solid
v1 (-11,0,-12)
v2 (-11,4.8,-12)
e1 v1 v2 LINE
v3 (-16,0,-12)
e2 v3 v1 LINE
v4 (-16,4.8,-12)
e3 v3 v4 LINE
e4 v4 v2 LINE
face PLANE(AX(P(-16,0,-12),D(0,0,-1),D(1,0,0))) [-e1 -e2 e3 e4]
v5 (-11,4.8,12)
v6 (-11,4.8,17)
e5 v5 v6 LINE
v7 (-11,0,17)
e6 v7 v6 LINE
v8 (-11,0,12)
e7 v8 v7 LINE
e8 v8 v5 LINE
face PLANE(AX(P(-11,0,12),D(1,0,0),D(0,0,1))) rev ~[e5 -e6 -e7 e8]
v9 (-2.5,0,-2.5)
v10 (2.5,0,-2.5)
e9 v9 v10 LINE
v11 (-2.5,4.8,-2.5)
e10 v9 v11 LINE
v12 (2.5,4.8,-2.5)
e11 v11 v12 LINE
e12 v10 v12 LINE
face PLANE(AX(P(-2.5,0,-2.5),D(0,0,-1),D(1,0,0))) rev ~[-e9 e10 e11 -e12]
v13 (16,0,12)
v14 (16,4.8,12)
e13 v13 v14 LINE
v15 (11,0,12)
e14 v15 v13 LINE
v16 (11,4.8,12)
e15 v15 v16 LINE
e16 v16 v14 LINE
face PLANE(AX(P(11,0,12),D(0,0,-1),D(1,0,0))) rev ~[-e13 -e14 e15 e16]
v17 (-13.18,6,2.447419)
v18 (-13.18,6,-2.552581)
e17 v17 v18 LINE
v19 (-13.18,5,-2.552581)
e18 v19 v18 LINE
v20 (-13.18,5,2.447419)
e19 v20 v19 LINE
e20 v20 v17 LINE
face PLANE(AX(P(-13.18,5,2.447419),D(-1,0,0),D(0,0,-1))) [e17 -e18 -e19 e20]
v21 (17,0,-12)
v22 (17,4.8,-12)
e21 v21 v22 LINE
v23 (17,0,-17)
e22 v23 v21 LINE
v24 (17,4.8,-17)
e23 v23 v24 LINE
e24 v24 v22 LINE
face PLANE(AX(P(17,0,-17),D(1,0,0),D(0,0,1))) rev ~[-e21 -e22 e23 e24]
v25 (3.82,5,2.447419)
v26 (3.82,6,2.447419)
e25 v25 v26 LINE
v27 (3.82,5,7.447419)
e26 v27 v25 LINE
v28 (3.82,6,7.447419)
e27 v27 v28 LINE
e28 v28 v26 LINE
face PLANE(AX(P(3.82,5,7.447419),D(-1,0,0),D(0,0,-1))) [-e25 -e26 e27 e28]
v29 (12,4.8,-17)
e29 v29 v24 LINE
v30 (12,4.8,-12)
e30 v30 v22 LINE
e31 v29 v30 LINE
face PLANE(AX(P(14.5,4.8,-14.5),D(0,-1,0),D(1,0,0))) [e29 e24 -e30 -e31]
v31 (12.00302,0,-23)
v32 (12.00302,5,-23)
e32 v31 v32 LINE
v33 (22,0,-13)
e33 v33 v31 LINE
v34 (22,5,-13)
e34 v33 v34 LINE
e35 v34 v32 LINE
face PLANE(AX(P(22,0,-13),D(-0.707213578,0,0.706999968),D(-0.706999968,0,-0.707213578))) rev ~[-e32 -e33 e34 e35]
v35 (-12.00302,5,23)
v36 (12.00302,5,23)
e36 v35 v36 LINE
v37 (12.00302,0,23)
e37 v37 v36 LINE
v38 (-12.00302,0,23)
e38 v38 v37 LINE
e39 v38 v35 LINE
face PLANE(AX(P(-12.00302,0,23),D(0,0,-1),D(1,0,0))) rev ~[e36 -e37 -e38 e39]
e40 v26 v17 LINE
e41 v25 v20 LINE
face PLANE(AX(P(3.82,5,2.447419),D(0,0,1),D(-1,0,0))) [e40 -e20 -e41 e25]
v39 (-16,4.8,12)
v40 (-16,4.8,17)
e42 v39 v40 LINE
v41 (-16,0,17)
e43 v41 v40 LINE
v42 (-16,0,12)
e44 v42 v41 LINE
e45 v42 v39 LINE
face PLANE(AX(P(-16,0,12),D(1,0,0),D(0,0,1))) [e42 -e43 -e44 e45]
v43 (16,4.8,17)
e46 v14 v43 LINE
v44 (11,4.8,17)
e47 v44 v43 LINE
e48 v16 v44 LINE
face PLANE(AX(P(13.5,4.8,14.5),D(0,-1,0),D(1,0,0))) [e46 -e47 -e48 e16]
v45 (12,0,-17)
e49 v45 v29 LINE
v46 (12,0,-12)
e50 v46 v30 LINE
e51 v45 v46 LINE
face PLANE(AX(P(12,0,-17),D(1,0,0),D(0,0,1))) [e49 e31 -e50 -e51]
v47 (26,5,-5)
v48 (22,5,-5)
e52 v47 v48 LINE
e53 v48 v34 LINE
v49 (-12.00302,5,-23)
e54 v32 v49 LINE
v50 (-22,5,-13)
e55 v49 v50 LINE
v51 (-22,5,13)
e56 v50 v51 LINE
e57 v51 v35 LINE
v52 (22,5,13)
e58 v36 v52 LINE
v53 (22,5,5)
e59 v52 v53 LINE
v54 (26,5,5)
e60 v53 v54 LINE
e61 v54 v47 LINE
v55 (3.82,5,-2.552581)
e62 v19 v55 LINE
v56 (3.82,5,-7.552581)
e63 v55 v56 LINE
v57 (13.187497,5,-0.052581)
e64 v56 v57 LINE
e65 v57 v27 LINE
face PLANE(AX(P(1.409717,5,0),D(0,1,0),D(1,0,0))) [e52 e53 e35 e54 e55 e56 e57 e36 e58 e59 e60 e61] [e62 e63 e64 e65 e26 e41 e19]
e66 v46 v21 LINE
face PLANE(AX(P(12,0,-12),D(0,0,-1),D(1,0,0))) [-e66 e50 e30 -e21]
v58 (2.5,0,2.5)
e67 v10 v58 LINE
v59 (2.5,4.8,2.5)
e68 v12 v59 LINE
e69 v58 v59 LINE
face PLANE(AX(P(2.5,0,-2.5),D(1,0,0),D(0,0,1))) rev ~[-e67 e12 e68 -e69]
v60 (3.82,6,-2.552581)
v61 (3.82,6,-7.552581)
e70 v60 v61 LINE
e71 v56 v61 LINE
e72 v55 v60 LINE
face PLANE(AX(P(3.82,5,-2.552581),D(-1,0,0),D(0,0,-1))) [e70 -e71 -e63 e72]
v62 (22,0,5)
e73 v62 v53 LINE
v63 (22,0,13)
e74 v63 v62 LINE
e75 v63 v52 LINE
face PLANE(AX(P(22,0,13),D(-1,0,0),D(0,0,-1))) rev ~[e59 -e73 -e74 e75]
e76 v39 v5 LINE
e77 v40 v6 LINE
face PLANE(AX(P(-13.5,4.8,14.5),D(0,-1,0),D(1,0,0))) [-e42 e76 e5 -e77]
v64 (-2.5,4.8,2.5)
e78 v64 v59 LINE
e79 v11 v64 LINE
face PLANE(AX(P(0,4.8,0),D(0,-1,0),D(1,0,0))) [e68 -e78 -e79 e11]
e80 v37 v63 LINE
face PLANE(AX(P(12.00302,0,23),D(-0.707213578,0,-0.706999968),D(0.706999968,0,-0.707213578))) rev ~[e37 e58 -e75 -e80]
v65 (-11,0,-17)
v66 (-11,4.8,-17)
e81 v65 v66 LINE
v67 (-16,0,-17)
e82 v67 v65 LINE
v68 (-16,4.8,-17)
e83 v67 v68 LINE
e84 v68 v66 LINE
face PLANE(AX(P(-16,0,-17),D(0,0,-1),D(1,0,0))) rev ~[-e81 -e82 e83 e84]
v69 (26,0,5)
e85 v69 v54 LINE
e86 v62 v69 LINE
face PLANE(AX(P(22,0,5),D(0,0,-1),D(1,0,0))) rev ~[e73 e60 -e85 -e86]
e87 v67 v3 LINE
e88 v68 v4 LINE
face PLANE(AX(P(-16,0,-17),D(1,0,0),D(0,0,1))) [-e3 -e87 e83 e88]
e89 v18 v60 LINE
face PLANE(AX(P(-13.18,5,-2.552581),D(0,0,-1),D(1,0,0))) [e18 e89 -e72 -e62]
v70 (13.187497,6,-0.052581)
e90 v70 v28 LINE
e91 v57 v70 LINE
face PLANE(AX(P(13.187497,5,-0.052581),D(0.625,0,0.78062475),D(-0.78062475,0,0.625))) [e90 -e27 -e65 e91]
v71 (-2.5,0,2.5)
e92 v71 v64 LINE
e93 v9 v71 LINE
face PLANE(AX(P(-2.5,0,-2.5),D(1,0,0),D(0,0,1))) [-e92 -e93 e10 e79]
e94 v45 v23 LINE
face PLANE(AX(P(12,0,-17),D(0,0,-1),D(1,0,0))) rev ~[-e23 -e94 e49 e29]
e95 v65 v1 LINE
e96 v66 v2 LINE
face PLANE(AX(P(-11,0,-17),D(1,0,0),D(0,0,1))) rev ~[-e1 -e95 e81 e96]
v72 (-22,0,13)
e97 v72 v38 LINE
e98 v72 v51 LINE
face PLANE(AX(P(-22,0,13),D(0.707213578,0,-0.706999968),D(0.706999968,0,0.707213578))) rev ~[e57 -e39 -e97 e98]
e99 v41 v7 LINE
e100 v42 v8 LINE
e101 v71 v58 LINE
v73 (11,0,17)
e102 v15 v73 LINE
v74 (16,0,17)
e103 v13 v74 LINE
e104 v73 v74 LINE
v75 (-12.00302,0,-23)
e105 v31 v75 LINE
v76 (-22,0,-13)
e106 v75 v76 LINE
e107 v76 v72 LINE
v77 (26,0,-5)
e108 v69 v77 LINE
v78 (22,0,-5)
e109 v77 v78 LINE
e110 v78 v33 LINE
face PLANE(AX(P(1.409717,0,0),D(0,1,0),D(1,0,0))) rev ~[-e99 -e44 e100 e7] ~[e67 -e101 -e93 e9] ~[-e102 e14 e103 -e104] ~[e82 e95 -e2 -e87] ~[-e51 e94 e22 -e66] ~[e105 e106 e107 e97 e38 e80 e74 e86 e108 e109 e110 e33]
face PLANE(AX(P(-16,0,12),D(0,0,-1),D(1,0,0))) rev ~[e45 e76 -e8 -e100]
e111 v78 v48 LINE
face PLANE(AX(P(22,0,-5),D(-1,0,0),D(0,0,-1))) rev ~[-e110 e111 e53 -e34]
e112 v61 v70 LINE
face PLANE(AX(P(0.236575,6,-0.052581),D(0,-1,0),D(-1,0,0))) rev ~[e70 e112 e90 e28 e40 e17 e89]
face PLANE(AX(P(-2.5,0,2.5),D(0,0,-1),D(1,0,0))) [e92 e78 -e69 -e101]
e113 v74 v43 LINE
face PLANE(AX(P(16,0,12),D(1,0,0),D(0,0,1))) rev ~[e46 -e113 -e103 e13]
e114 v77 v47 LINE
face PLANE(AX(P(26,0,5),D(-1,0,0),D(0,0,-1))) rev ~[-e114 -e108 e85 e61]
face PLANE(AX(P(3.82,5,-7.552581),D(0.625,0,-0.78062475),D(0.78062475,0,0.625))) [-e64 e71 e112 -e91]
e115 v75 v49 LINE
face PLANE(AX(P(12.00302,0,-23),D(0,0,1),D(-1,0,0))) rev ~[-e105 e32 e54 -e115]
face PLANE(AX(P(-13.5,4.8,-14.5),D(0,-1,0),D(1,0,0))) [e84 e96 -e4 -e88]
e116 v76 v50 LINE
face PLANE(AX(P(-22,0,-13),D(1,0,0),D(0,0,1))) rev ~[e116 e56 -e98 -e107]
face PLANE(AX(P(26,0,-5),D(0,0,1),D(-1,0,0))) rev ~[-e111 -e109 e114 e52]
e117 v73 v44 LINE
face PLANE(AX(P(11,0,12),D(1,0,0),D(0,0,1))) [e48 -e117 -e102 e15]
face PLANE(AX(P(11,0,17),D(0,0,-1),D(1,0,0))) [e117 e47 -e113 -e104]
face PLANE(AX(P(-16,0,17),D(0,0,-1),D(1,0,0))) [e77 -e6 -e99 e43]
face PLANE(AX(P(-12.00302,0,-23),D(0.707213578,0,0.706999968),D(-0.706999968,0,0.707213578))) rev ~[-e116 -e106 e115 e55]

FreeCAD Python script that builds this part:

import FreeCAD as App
import Part
import Sketcher


def add_polygon(sketch, points):
    """Adds a closed chain of lines whose ends are joined by coincident constraints."""
    first, n = sketch.GeometryCount, len(points)
    for a, b in zip(points, points[1:] + points[:1]):
        sketch.addGeometry(Part.LineSegment(App.Vector(*a, 0), App.Vector(*b, 0)), False)
    for i in range(n):
        sketch.addConstraint(Sketcher.Constraint("Coincident", first + i, 2, first + (i + 1) % n, 1))

doc = App.newDocument("Part")
params = doc.addObject("Spreadsheet::Sheet", "Params")
for row, (alias, value) in enumerate([
    ("sketch1_width", "4 mm"),
    ("sketch1_height", "26 mm"),
    ("sketch1_height2", "8 mm"),
    ("sketch1_length", "14.14 mm"),
    ("pad1_length", "5 mm"),
    ("sketch2_width", "17 mm"),
    ("sketch2_height", "5 mm"),
    ("sketch2_length", "12 mm"),
    ("pad2_length", "1 mm"),
    ("sketch3_width", "5 mm"),
    ("pocket1_length", "4.8 mm"),
], start=1):
    params.set(f"A{row}", alias)
    params.set(f"B{row}", "=" + value)
    params.setAlias(f"B{row}", alias)

body = doc.addObject("PartDesign::Body", "Body")

sketch1 = body.newObject("Sketcher::SketchObject", "Sketch")
sketch1.AttachmentSupport = (doc.getObject("XZ_Plane"), [""])
sketch1.MapMode = "FlatFace"
add_polygon(sketch1, [(22, -13), (12, -23), (-12, -23), (-22, -13), (-22, 13), (-12, 23), (12, 23), (22, 13), (22, 5), (26, 5), (26, -5), (22, -5)])
sketch1.addConstraint([
    Sketcher.Constraint("Horizontal", 1),
    Sketcher.Constraint("Vertical", 3),
    Sketcher.Constraint("Horizontal", 5),
    Sketcher.Constraint("Vertical", 7),
    Sketcher.Constraint("Horizontal", 8),
    Sketcher.Constraint("Vertical", 9),
    Sketcher.Constraint("Horizontal", 10),
    Sketcher.Constraint("Vertical", 11),
    Sketcher.Constraint("Symmetric", 0, 2, 4, 2, -1, 1),
    Sketcher.Constraint("Symmetric", 2, 2, 6, 2, -1, 1),
    Sketcher.Constraint("Symmetric", 3, 2, 11, 2, -1, 1),
    Sketcher.Constraint("Parallel", 2, 6),
    Sketcher.Constraint("Horizontal", 3, 2, 6, 2),
    Sketcher.Constraint("Vertical", 1, 2, 4, 2),
    Sketcher.Constraint("Equal", 7, 11),
    Sketcher.Constraint("DistanceX", 8, 1, 8, 2, 4.0),
    Sketcher.Constraint("DistanceY", 3, 1, 3, 2, 26.0),
    Sketcher.Constraint("DistanceY", 7, 2, 7, 1, 8.0),
    Sketcher.Constraint("DistanceY", 0, 2, -1, 1, 23.0),
    Sketcher.Constraint("DistanceX", 2, 2, -1, 1, 22.0),
    Sketcher.Constraint("Distance", 0, 14.14),
])
sketch1.setExpression("Constraints[27]", "Params.sketch1_width")
sketch1.setExpression("Constraints[28]", "Params.sketch1_height")
sketch1.setExpression("Constraints[29]", "Params.sketch1_height2")
sketch1.setExpression("Constraints[32]", "Params.sketch1_length")
pad1 = body.newObject("PartDesign::Pad", "Pad")
pad1.Profile = sketch1
pad1.setExpression("Length", "Params.pad1_length")
pad1.Reversed = True

sketch2 = body.newObject("Sketcher::SketchObject", "Sketch001")
sketch2.AttachmentSupport = (doc.getObject("XZ_Plane"), [""])
sketch2.MapMode = "FlatFace"
sketch2.AttachmentOffset = App.Placement(App.Vector(0, 0, -5), App.Rotation())
add_polygon(sketch2, [(4, -8), (4, -3), (-13, -3), (-13, 2), (4, 2), (4, 7), (13, 0)])
sketch2.addConstraint([
    Sketcher.Constraint("Vertical", 0),
    Sketcher.Constraint("Horizontal", 1),
    Sketcher.Constraint("Vertical", 2),
    Sketcher.Constraint("Horizontal", 3),
    Sketcher.Constraint("Vertical", 4),
    Sketcher.Constraint("Vertical", 0, 2, 3, 2),
    Sketcher.Constraint("Equal", 0, 2),
    Sketcher.Constraint("Equal", 2, 4),
    Sketcher.Constraint("Equal", 5, 6),
    Sketcher.Constraint("DistanceX", 1, 2, 1, 1, 17.0),
    Sketcher.Constraint("DistanceY", 0, 1, 0, 2, 5.0),
    Sketcher.Constraint("Distance", 5, 12.0),
    Sketcher.Constraint("DistanceX", -1, 1, 0, 2, 3.82),
    Sketcher.Constraint("DistanceY", 0, 2, -1, 1, 2.552581),
])
sketch2.setExpression("Constraints[16]", "Params.sketch2_width")
sketch2.setExpression("Constraints[17]", "Params.sketch2_height")
sketch2.setExpression("Constraints[18]", "Params.sketch2_length")
pad2 = body.newObject("PartDesign::Pad", "Pad001")
pad2.Profile = sketch2
pad2.setExpression("Length", "Params.pad2_length")
pad2.Reversed = True

sketch3 = body.newObject("Sketcher::SketchObject", "Sketch002")
sketch3.AttachmentSupport = (doc.getObject("XZ_Plane"), [""])
sketch3.MapMode = "FlatFace"
add_polygon(sketch3, [(-16, 17), (-16, 12), (-11, 12), (-11, 17)])
add_polygon(sketch3, [(-16, -12), (-16, -17), (-11, -17), (-11, -12)])
add_polygon(sketch3, [(12, -12), (12, -17), (17, -17), (17, -12)])
add_polygon(sketch3, [(11, 17), (11, 12), (16, 12), (16, 17)])
add_polygon(sketch3, [(-2, 2), (-2, -2), (2, -2), (2, 2)])
sketch3.addConstraint([
    Sketcher.Constraint("Vertical", 0),
    Sketcher.Constraint("Horizontal", 1),
    Sketcher.Constraint("Vertical", 2),
    Sketcher.Constraint("Horizontal", 3),
    Sketcher.Constraint("Vertical", 4),
    Sketcher.Constraint("Horizontal", 5),
    Sketcher.Constraint("Vertical", 6),
    Sketcher.Constraint("Horizontal", 7),
    Sketcher.Constraint("Vertical", 8),
    Sketcher.Constraint("Horizontal", 9),
    Sketcher.Constraint("Vertical", 10),
    Sketcher.Constraint("Horizontal", 11),
    Sketcher.Constraint("Vertical", 12),
    Sketcher.Constraint("Horizontal", 13),
    Sketcher.Constraint("Vertical", 14),
    Sketcher.Constraint("Horizontal", 15),
    Sketcher.Constraint("Vertical", 16),
    Sketcher.Constraint("Horizontal", 17),
    Sketcher.Constraint("Vertical", 18),
    Sketcher.Constraint("Horizontal", 19),
    Sketcher.Constraint("Symmetric", 6, 2, 12, 2, -1, 1),
    Sketcher.Constraint("Symmetric", 4, 2, 14, 2, -1, 1),
    Sketcher.Constraint("Symmetric", 16, 2, 18, 2, -1, 1),
    Sketcher.Constraint("Symmetric", 1, 2, 12, 2, -2),
    Sketcher.Constraint("Symmetric", 3, 2, 14, 2, -2),
    Sketcher.Constraint("Horizontal", 5, 2, 8, 2),
    Sketcher.Constraint("Horizontal", 7, 2, 10, 2),
    Sketcher.Constraint("Equal", 7, 9),
    Sketcher.Constraint("Equal", 15, 17),
    Sketcher.Constraint("Equal", 19, 0),
    Sketcher.Constraint("Equal", 14, 16),
    Sketcher.Constraint("DistanceX", 1, 1, 1, 2, 5.0),
    Sketcher.Constraint("DistanceX", 0, 2, -1, 1, 16.0),
    Sketcher.Constraint("DistanceY", -1, 1, 0, 2, 12.0),
    Sketcher.Constraint("DistanceX", -1, 1, 8, 2, 12.0),
])
sketch3.setExpression("Constraints[51]", "Params.sketch3_width")
pocket1 = body.newObject("PartDesign::Pocket", "Pocket")
pocket1.Profile = sketch3
pocket1.setExpression("Length", "Params.pocket1_length")

doc.recompute()
